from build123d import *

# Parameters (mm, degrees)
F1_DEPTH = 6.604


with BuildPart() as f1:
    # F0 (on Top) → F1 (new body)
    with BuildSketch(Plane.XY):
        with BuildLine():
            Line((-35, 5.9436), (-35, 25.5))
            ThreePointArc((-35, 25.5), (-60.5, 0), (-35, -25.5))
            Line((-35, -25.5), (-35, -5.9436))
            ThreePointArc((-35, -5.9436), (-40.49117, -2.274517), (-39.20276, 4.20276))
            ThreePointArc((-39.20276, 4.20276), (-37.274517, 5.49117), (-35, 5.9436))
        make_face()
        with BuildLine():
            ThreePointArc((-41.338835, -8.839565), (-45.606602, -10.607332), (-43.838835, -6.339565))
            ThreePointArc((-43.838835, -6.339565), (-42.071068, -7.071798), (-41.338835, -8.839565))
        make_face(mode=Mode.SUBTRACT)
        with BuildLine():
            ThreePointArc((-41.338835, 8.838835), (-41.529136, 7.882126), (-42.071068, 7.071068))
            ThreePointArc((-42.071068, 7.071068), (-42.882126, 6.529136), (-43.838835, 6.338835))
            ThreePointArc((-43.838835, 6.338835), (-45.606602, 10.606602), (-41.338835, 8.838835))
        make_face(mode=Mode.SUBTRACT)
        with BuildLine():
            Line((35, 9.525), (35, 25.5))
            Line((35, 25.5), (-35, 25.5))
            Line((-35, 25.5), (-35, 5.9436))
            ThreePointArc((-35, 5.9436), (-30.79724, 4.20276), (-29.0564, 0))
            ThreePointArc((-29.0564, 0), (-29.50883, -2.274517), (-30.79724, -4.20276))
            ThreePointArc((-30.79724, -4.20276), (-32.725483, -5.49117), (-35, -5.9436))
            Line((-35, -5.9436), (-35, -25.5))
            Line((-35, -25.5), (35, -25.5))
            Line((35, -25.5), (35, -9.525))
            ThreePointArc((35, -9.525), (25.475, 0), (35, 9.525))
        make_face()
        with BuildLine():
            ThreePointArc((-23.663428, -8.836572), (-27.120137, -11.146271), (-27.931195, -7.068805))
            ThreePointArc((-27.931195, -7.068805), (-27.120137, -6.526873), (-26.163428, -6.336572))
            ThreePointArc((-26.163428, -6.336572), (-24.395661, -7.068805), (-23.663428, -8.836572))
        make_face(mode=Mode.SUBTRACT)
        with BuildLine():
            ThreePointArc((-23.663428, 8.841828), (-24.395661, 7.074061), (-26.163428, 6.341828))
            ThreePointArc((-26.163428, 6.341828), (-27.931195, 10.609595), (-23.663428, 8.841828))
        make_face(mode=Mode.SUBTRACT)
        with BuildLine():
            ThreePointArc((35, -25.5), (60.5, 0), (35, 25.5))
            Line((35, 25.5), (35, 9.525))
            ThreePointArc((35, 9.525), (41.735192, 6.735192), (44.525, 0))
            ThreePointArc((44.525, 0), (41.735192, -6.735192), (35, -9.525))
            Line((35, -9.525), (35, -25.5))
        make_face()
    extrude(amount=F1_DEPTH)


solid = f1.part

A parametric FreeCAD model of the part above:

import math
import FreeCAD as App
import Part
import Sketcher

V = App.Vector
Q = App.Units.Quantity

doc = App.newDocument("Part")
body = doc.addObject("PartDesign::Body", "Body")

# Sketch on XY plane
sketch1 = body.newObject("Sketcher::SketchObject", "Sketch")
sketch1.AttachmentSupport = (doc.getObject("XY_Plane"), [""])
sketch1.MapMode = "FlatFace"
sketch1.addGeometry([
    Part.ArcOfCircle(Part.Circle(V(-35, 0, 0), V(0, 0, 1), 25.5), math.radians(90), math.radians(270)),  # 0
    Part.LineSegment(V(-35, -25.5, 0), V(35, -25.5, 0)),  # 1
    Part.ArcOfCircle(Part.Circle(V(35, 0, 0), V(0, 0, 1), 25.5), math.radians(-90), math.radians(90)),  # 2
    Part.LineSegment(V(35, 25.5, 0), V(-35, 25.5, 0)),  # 3
    Part.ArcOfCircle(Part.Circle(V(35, 0, 0), V(0, 0, 1), 9.525), math.radians(90), math.radians(270)),  # 4
    Part.ArcOfCircle(Part.Circle(V(35, 0, 0), V(0, 0, 1), 9.525), math.radians(0.000002), math.radians(89.999998)),  # 5
    Part.ArcOfCircle(Part.Circle(V(35, 0, 0), V(0, 0, 1), 9.525), math.radians(-89.999998), math.radians(-0.000002)),  # 6
    Part.ArcOfCircle(Part.Circle(V(-43.838835, -8.839565, 0), V(0, 0, 1), 2.5), math.radians(-0.000004), math.radians(90.000004)),  # 7
    Part.ArcOfCircle(Part.Circle(V(-43.838835, -8.839565, 0), V(0, 0, 1), 2.5), math.radians(89.999999), math.radians(360.000001)),  # 8
    Part.ArcOfCircle(Part.Circle(V(-26.163428, -8.836572, 0), V(0, 0, 1), 2.5), math.radians(-0.000004), math.radians(90.000004)),  # 9
    Part.ArcOfCircle(Part.Circle(V(-26.163428, -8.836572, 0), V(0, 0, 1), 2.5), math.radians(134.999995), math.radians(360.000004)),  # 10
    Part.ArcOfCircle(Part.Circle(V(-26.16343, -8.836569, 0), V(0, 0, 1), 2.499997), math.radians(89.999966), math.radians(135.000031)),  # 11
    Part.ArcOfCircle(Part.Circle(V(-34.999997, -0.000007, 0), V(0, 0, 1), 5.943607), math.radians(90.000024), math.radians(134.999971)),  # 12
    Part.ArcOfCircle(Part.Circle(V(-35, 0, 0), V(0, 0, 1), 5.9436), math.radians(-0.000004), math.radians(90.000004)),  # 13
    Part.ArcOfCircle(Part.Circle(V(-35.000007, 0.000003, 0), V(0, 0, 1), 5.943607), math.radians(-44.999971), math.radians(-0.000024)),  # 14
    Part.ArcOfCircle(Part.Circle(V(-35.000003, 0.000007, 0), V(0, 0, 1), 5.943607), math.radians(-89.999976), math.radians(-45.000029)),  # 15
    Part.ArcOfCircle(Part.Circle(V(-34.999999, 0, 0), V(0, 0, 1), 5.9436), math.radians(135.000008), math.radians(269.999992)),  # 16
    Part.ArcOfCircle(Part.Circle(V(-43.838835, 8.838835, 0), V(0, 0, 1), 2.5), math.radians(-0.000001), math.radians(270.000001)),  # 17
    Part.ArcOfCircle(Part.Circle(V(-43.838832, 8.838833, 0), V(0, 0, 1), 2.499997), math.radians(-45.000031), math.radians(0.000034)),  # 18
    Part.ArcOfCircle(Part.Circle(V(-43.838833, 8.838832, 0), V(0, 0, 1), 2.499997), math.radians(-90.000034), math.radians(-44.999969)),  # 19
    Part.ArcOfCircle(Part.Circle(V(-26.163428, 8.841828, 0), V(0, 0, 1), 2.5), math.radians(-0.000001), math.radians(270.000001)),  # 20
    Part.ArcOfCircle(Part.Circle(V(-26.163428, 8.841828, 0), V(0, 0, 1), 2.5), math.radians(-90.000004), math.radians(0.000004)),  # 21
], False)
sketch1.addConstraint([
    Sketcher.Constraint("Tangent", 0, 2, 1, 1),
    Sketcher.Constraint("Tangent", 1, 2, 2, 1),
    Sketcher.Constraint("Tangent", 2, 2, 3, 1),
    Sketcher.Constraint("Tangent", 3, 2, 0, 1),
    Sketcher.Constraint("Tangent", 4, 1, 5, 2),
    Sketcher.Constraint("Tangent", 5, 1, 6, 2),
    Sketcher.Constraint("Tangent", 6, 1, 4, 2),
    Sketcher.Constraint("Tangent", 7, 1, 8, 2),
    Sketcher.Constraint("Coincident", 8, 1, 7, 2),
    Sketcher.Constraint("Tangent", 9, 1, 10, 2),
    Sketcher.Constraint("Tangent", 10, 1, 11, 2),
    Sketcher.Constraint("Tangent", 11, 1, 9, 2),
    Sketcher.Constraint("Tangent", 12, 1, 13, 2),
    Sketcher.Constraint("Tangent", 13, 1, 14, 2),
    Sketcher.Constraint("Tangent", 14, 1, 15, 2),
    Sketcher.Constraint("Tangent", 15, 1, 16, 2),
    Sketcher.Constraint("Tangent", 16, 1, 12, 2),
    Sketcher.Constraint("Tangent", 17, 1, 18, 2),
    Sketcher.Constraint("Tangent", 18, 1, 19, 2),
    Sketcher.Constraint("Tangent", 19, 1, 17, 2),
    Sketcher.Constraint("Tangent", 20, 1, 21, 2),
    Sketcher.Constraint("Coincident", 21, 1, 20, 2),
    Sketcher.Constraint("Horizontal", 1),
    Sketcher.Constraint("Horizontal", 3),
    Sketcher.Constraint("Coincident", 4, 3, 2, 3),
    Sketcher.Constraint("Coincident", 12, 3, 0, 3),
    Sketcher.Constraint("Coincident", 14, 3, 0, 3),
    Sketcher.Constraint("Equal", 8, 9),
    Sketcher.Constraint("Equal", 10, 17),
    Sketcher.Constraint("Equal", 17, 20),
    Sketcher.Constraint("Symmetric", 0, 3, 2, 3, -1, 1),
    Sketcher.Constraint("PointOnObject", 5, 1, -1),
    Sketcher.Constraint("PointOnObject", 13, 1, -1),
    Sketcher.Constraint("Horizontal", 8, 3, 7, 1),
    Sketcher.Constraint("Horizontal", 10, 3, 9, 1),
    Sketcher.Constraint("Horizontal", 18, 3, 17, 1),
    Sketcher.Constraint("Horizontal", 21, 3, 20, 1),
    Sketcher.Constraint("Vertical", 8, 3, 17, 3),
    Sketcher.Constraint("Vertical", 11, 3, 20, 3),
    Sketcher.Constraint("Vertical", 2, 2, 4, 1),
    Sketcher.Constraint("Vertical", 4, 1, 6, 1),
    Sketcher.Constraint("Vertical", 19, 3, 8, 1),
    Sketcher.Constraint("Vertical", 21, 3, 11, 1),
    Sketcher.Constraint("Vertical", 3, 2, 12, 1),
    Sketcher.Constraint("Vertical", 12, 1, 15, 1),
    Sketcher.Constraint("Vertical", 8, 1, 19, 1),
    Sketcher.Constraint("Vertical", 11, 1, 21, 1),
    Sketcher.Constraint("Radius", 4, Q("0.375 in")),
    Sketcher.Constraint("Radius", 13, Q("0.234 in")),
    Sketcher.Constraint("Radius", 0, 25.5),
    Sketcher.Constraint("Radius", 7, 2.5),
    Sketcher.Constraint("DistanceX", 1, 1, 1, 2, 70.0),
    Sketcher.Constraint("DistanceY", 10, 1, 12, 3, 7.068798),
    Sketcher.Constraint("DistanceY", 9, 3, -1, 1, 8.836572),
    Sketcher.Constraint("DistanceX", 10, 3, -1, 1, 26.163428),
    Sketcher.Constraint("DistanceX", 18, 3, -1, 1, 43.838832),
    Sketcher.Constraint("DistanceY", -1, 1, 19, 3, 8.838832),
    Sketcher.Constraint("DistanceY", -1, 1, 20, 3, 8.841828),
    Sketcher.Constraint("DistanceX", 14, 1, -1, 1, 30.79724),
    Sketcher.Constraint("DistanceX", 16, 1, -1, 1, 39.20276),
    Sketcher.Constraint("DistanceX", 18, 1, -1, 1, 42.071068),
    Sketcher.Constraint("DistanceY", 7, 3, 12, 3, 8.839558),
])
pad1 = body.newObject("PartDesign::Pad", "Pad")
pad1.Profile = sketch1
pad1.Length = Q("0.26 in")

doc.recompute()
